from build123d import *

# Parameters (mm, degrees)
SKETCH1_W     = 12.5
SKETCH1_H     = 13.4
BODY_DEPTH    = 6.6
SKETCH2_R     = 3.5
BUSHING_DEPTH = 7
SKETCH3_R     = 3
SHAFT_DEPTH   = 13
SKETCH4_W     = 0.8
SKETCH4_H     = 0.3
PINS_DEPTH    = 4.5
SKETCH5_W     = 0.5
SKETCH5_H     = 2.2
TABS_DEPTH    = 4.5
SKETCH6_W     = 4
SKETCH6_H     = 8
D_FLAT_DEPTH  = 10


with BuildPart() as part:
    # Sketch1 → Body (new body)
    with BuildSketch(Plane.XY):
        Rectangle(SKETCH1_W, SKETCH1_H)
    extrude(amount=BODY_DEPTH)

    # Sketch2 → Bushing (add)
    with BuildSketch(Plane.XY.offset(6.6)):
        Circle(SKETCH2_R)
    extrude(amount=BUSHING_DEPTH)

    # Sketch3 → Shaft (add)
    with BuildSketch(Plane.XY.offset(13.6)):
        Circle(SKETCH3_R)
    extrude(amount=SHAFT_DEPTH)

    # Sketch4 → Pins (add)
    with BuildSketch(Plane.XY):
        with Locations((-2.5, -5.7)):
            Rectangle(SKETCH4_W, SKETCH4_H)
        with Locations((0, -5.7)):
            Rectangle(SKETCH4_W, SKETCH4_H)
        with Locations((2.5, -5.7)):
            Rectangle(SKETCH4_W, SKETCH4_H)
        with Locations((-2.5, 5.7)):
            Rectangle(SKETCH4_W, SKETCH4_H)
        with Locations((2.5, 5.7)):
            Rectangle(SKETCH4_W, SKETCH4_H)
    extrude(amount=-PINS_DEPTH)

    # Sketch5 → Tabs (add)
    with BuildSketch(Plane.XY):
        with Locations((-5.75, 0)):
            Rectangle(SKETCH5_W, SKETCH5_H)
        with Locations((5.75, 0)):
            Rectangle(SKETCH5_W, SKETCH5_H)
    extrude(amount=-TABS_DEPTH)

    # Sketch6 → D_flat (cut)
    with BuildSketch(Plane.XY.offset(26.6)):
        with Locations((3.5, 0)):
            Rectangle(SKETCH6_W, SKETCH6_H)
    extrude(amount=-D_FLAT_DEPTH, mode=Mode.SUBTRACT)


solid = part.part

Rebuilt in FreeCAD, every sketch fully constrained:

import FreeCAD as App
import Part
import Sketcher
Q = App.Units.Quantity


def add_polygon(sketch, points):
    """Adds a closed chain of lines whose ends are joined by coincident constraints."""
    first, n = sketch.GeometryCount, len(points)
    for a, b in zip(points, points[1:] + points[:1]):
        sketch.addGeometry(Part.LineSegment(App.Vector(*a, 0), App.Vector(*b, 0)), False)
    for i in range(n):
        sketch.addConstraint(Sketcher.Constraint("Coincident", first + i, 2, first + (i + 1) % n, 1))

doc = App.newDocument("Part")
body = doc.addObject("PartDesign::Body", "Body")

# Sketch on XY plane
sketch1 = doc.addObject("Sketcher::SketchObject", "Sketch")
body.addObject(sketch1)
sketch1.AttachmentSupport = (doc.XY_Plane, [""])
sketch1.MapMode = "FlatFace"
add_polygon(sketch1, [(-6.25, 6.7), (-6.25, -6.7), (6.25, -6.7), (6.25, 6.7)])  # lines 0-3
sketch1.addConstraint([
    Sketcher.Constraint("Vertical", 0),
    Sketcher.Constraint("Horizontal", 1),
    Sketcher.Constraint("Vertical", 2),
    Sketcher.Constraint("Horizontal", 3),
    Sketcher.Constraint("Symmetric", 0, 2, 2, 2, -1, 1),
    Sketcher.Constraint("DistanceX", 1, 1, 1, 2, Q("12.5 mm")),
    Sketcher.Constraint("DistanceY", 0, 2, 0, 1, Q("13.4 mm")),
])
pad1 = doc.addObject("PartDesign::Pad", "Pad")
body.addObject(pad1)
pad1.Profile = sketch1
pad1.Length = 6.6

# Sketch on XY plane
sketch2 = doc.addObject("Sketcher::SketchObject", "Sketch001")
body.addObject(sketch2)
sketch2.AttachmentSupport = (doc.XY_Plane, [""])
sketch2.MapMode = "FlatFace"
sketch2.AttachmentOffset = App.Placement(App.Vector(0, 0, 6.6), App.Rotation())
sketch2.addGeometry(Part.Circle(App.Vector(0, 0, 0), App.Vector(0, 0, 1), 3.5), False)
sketch2.addConstraint([
    Sketcher.Constraint("Coincident", 0, 3, -1, 1),
    Sketcher.Constraint("Diameter", 0, Q("7 mm")),
])
pad2 = doc.addObject("PartDesign::Pad", "Pad001")
body.addObject(pad2)
pad2.Profile = sketch2
pad2.Length = 7

# Sketch on XY plane
sketch3 = doc.addObject("Sketcher::SketchObject", "Sketch002")
body.addObject(sketch3)
sketch3.AttachmentSupport = (doc.XY_Plane, [""])
sketch3.MapMode = "FlatFace"
sketch3.AttachmentOffset = App.Placement(App.Vector(0, 0, 13.6), App.Rotation())
sketch3.addGeometry(Part.Circle(App.Vector(0, 0, 0), App.Vector(0, 0, 1), 3), False)
sketch3.addConstraint([
    Sketcher.Constraint("Coincident", 0, 3, -1, 1),
    Sketcher.Constraint("Diameter", 0, Q("6 mm")),
])
pad3 = doc.addObject("PartDesign::Pad", "Pad002")
body.addObject(pad3)
pad3.Profile = sketch3
pad3.Length = 13

# Sketch on XY plane
sketch4 = doc.addObject("Sketcher::SketchObject", "Sketch003")
body.addObject(sketch4)
sketch4.AttachmentSupport = (doc.XY_Plane, [""])
sketch4.MapMode = "FlatFace"
add_polygon(sketch4, [(-2.9, -5.55), (-2.9, -5.85), (-2.1, -5.85), (-2.1, -5.55)])  # lines 0-3
add_polygon(sketch4, [(-0.4, -5.55), (-0.4, -5.85), (0.4, -5.85), (0.4, -5.55)])  # lines 4-7
add_polygon(sketch4, [(2.1, -5.55), (2.1, -5.85), (2.9, -5.85), (2.9, -5.55)])  # lines 8-11
add_polygon(sketch4, [(-2.9, 5.85), (-2.9, 5.55), (-2.1, 5.55), (-2.1, 5.85)])  # lines 12-15
add_polygon(sketch4, [(2.1, 5.85), (2.1, 5.55), (2.9, 5.55), (2.9, 5.85)])  # lines 16-19
sketch4.addConstraint([
    Sketcher.Constraint("Vertical", 0),
    Sketcher.Constraint("Horizontal", 1),
    Sketcher.Constraint("Vertical", 2),
    Sketcher.Constraint("Horizontal", 3),
    Sketcher.Constraint("Vertical", 4),
    Sketcher.Constraint("Horizontal", 5),
    Sketcher.Constraint("Vertical", 6),
    Sketcher.Constraint("Horizontal", 7),
    Sketcher.Constraint("Vertical", 8),
    Sketcher.Constraint("Horizontal", 9),
    Sketcher.Constraint("Vertical", 10),
    Sketcher.Constraint("Horizontal", 11),
    Sketcher.Constraint("Vertical", 12),
    Sketcher.Constraint("Horizontal", 13),
    Sketcher.Constraint("Vertical", 14),
    Sketcher.Constraint("Horizontal", 15),
    Sketcher.Constraint("Vertical", 16),
    Sketcher.Constraint("Horizontal", 17),
    Sketcher.Constraint("Vertical", 18),
    Sketcher.Constraint("Horizontal", 19),
    Sketcher.Constraint("Symmetric", 10, 2, 12, 2, -1, 1),
    Sketcher.Constraint("Symmetric", 8, 2, 14, 2, -1, 1),
    Sketcher.Constraint("Symmetric", 2, 2, 16, 2, -1, 1),
    Sketcher.Constraint("Symmetric", 0, 2, 18, 2, -1, 1),
    Sketcher.Constraint("Symmetric", 1, 2, 8, 2, -2),
    Sketcher.Constraint("Symmetric", 3, 2, 10, 2, -2),
    Sketcher.Constraint("Horizontal", 1, 2, 4, 2),
    Sketcher.Constraint("Horizontal", 3, 2, 6, 2),
    Sketcher.Constraint("Equal", 3, 5),
    Sketcher.Constraint("DistanceX", 1, 1, 1, 2, Q("0.8 mm")),
    Sketcher.Constraint("DistanceY", 0, 2, 0, 1, Q("0.3 mm")),
    Sketcher.Constraint("DistanceX", 12, 2, 16, 2, Q("5 mm")),
    Sketcher.Constraint("DistanceX", 4, 2, -1, 1, Q("0.4 mm")),
    Sketcher.Constraint("DistanceY", 3, 2, 12, 2, Q("11.1 mm")),
])
pad4 = doc.addObject("PartDesign::Pad", "Pad003")
body.addObject(pad4)
pad4.Profile = sketch4
pad4.Length = 4.5
pad4.Reversed = True

# Sketch on XY plane
sketch5 = doc.addObject("Sketcher::SketchObject", "Sketch004")
body.addObject(sketch5)
sketch5.AttachmentSupport = (doc.XY_Plane, [""])
sketch5.MapMode = "FlatFace"
add_polygon(sketch5, [(-6, 1.1), (-6, -1.1), (-5.5, -1.1), (-5.5, 1.1)])  # lines 0-3
add_polygon(sketch5, [(5.5, 1.1), (5.5, -1.1), (6, -1.1), (6, 1.1)])  # lines 4-7
sketch5.addConstraint([
    Sketcher.Constraint("Vertical", 0),
    Sketcher.Constraint("Horizontal", 1),
    Sketcher.Constraint("Vertical", 2),
    Sketcher.Constraint("Horizontal", 3),
    Sketcher.Constraint("Vertical", 4),
    Sketcher.Constraint("Horizontal", 5),
    Sketcher.Constraint("Vertical", 6),
    Sketcher.Constraint("Horizontal", 7),
    Sketcher.Constraint("Symmetric", 2, 2, 4, 2, -1, 1),
    Sketcher.Constraint("Symmetric", 0, 2, 6, 2, -1, 1),
    Sketcher.Constraint("Horizontal", 1, 2, 4, 2),
    Sketcher.Constraint("DistanceX", 1, 1, 1, 2, Q("0.5 mm")),
    Sketcher.Constraint("DistanceY", 0, 2, 0, 1, Q("2.2 mm")),
    Sketcher.Constraint("DistanceX", 0, 2, -1, 1, Q("6 mm")),
])
pad5 = doc.addObject("PartDesign::Pad", "Pad004")
body.addObject(pad5)
pad5.Profile = sketch5
pad5.Length = 4.5
pad5.Reversed = True

# Sketch on XY plane
sketch6 = doc.addObject("Sketcher::SketchObject", "Sketch005")
body.addObject(sketch6)
sketch6.AttachmentSupport = (doc.XY_Plane, [""])
sketch6.MapMode = "FlatFace"
sketch6.AttachmentOffset = App.Placement(App.Vector(0, 0, 26.6), App.Rotation())
add_polygon(sketch6, [(1.5, 4), (1.5, -4), (5.5, -4), (5.5, 4)])  # lines 0-3
sketch6.addConstraint([
    Sketcher.Constraint("Vertical", 0),
    Sketcher.Constraint("Horizontal", 1),
    Sketcher.Constraint("Vertical", 2),
    Sketcher.Constraint("Horizontal", 3),
    Sketcher.Constraint("DistanceX", 1, 1, 1, 2, Q("4 mm")),
    Sketcher.Constraint("DistanceY", 0, 2, 0, 1, Q("8 mm")),
    Sketcher.Constraint("DistanceY", 0, 2, -1, 1, Q("4 mm")),
    Sketcher.Constraint("DistanceX", -1, 1, 0, 2, Q("1.5 mm")),
])
pocket1 = doc.addObject("PartDesign::Pocket", "Pocket")
body.addObject(pocket1)
pocket1.Profile = sketch6
pocket1.Length = 10

doc.recompute()
